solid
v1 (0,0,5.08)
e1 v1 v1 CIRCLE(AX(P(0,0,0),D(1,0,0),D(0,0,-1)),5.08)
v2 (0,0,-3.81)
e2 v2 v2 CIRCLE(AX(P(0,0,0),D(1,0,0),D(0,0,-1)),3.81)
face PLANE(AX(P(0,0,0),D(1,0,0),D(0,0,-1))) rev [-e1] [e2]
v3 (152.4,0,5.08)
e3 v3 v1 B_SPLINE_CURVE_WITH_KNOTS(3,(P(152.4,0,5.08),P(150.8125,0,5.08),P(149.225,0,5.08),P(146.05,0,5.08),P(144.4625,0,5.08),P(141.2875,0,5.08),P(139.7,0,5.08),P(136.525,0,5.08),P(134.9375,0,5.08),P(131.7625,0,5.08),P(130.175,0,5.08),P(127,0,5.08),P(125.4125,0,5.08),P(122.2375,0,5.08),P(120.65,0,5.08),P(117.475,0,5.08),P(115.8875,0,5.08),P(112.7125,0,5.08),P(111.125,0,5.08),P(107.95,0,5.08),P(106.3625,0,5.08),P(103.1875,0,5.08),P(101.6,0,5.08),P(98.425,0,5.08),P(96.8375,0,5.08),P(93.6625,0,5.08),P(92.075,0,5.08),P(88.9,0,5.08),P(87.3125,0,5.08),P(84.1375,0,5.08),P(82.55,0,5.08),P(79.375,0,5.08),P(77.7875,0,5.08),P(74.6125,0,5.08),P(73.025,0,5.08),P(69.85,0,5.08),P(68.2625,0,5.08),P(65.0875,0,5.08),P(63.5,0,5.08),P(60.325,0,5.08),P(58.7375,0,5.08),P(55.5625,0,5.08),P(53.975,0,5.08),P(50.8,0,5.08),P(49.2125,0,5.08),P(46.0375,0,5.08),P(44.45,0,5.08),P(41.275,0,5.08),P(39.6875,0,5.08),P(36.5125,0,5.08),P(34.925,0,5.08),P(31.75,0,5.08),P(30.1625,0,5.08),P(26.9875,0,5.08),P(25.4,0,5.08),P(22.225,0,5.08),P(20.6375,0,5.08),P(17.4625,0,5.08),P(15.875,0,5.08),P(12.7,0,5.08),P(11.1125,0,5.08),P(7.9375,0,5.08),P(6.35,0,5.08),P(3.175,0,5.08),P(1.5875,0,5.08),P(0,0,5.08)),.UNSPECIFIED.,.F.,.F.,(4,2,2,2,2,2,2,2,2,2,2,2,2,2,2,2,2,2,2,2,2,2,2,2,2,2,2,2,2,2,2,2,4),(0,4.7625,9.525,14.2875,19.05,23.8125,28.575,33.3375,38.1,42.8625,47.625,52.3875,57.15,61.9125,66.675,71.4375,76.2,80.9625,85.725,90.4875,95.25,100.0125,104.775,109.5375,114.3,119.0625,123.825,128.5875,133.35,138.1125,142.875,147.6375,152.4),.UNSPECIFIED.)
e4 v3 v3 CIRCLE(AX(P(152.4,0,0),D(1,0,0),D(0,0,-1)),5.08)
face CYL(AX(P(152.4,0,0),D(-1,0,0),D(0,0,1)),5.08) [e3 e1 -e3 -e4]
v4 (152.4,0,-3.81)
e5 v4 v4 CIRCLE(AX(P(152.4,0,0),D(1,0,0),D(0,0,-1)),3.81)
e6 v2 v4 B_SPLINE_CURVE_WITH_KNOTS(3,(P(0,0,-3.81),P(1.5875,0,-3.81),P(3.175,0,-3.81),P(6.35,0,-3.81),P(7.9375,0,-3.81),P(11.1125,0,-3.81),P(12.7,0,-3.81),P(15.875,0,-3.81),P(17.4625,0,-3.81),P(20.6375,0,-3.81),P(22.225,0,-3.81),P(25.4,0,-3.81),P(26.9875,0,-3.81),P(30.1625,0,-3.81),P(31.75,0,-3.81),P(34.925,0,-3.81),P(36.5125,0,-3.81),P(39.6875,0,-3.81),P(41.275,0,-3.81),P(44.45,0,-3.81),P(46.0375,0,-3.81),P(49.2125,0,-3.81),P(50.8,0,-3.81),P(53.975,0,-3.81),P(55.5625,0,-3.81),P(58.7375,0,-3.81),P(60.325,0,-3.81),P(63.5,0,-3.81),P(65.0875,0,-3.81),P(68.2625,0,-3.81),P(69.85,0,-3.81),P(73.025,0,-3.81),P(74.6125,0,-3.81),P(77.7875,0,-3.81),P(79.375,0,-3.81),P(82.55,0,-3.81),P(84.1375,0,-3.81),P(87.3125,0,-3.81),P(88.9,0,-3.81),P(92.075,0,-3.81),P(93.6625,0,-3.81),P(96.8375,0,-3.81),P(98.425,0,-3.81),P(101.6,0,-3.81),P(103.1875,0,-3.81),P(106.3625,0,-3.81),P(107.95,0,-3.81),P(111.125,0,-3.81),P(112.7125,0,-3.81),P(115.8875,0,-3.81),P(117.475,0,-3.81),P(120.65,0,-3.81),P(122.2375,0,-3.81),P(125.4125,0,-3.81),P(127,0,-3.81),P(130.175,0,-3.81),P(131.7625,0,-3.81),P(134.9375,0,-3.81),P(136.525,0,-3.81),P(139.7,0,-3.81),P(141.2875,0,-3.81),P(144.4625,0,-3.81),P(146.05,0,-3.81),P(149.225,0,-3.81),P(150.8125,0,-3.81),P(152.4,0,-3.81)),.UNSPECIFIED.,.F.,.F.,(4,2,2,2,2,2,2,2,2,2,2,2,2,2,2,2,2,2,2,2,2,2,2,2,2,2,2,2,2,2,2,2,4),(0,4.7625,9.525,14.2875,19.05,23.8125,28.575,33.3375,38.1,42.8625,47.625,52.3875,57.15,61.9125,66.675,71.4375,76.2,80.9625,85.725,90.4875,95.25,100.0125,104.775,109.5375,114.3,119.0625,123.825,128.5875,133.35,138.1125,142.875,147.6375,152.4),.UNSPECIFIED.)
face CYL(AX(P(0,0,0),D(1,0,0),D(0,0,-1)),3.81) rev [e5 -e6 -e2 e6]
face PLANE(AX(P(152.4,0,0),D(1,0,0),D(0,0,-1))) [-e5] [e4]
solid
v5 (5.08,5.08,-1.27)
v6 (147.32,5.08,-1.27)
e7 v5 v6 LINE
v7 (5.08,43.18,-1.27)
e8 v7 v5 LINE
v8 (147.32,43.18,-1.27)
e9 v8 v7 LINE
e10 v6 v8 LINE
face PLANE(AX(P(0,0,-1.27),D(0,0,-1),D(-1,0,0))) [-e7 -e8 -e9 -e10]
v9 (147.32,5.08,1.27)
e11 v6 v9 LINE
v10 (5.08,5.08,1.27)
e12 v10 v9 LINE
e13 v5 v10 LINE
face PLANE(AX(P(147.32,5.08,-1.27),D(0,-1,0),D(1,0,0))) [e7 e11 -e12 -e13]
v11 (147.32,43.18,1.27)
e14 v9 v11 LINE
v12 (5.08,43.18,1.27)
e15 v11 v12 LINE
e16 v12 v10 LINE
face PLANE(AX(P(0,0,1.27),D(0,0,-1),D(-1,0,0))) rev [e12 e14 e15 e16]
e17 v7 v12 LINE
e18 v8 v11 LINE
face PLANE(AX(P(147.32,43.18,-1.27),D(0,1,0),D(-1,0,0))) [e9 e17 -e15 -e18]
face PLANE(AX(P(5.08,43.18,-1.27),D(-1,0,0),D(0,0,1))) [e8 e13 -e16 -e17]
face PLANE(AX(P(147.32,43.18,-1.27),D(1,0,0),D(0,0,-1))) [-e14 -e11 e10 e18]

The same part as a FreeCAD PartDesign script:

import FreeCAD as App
import Part
import Sketcher

V = App.Vector
Q = App.Units.Quantity


def add_polygon(sketch, points):
    """Adds a closed chain of lines whose ends are joined by coincident constraints."""
    first, n = sketch.GeometryCount, len(points)
    for a, b in zip(points, points[1:] + points[:1]):
        sketch.addGeometry(Part.LineSegment(App.Vector(*a, 0), App.Vector(*b, 0)), False)
    for i in range(n):
        sketch.addConstraint(Sketcher.Constraint("Coincident", first + i, 2, first + (i + 1) % n, 1))

doc = App.newDocument("Part")
body = doc.addObject("PartDesign::Body", "Body")

# Sketch on YZ plane
sketch1 = body.newObject("Sketcher::SketchObject", "Sketch")
sketch1.AttachmentSupport = (doc.getObject("YZ_Plane"), [""])
sketch1.MapMode = "FlatFace"
sketch1.addGeometry(Part.Circle(V(0, 0, 0), V(0, 0, 1), 5), False)
sketch1.addConstraint([
    Sketcher.Constraint("Coincident", 0, 3, -1, 1),
    Sketcher.Constraint("Diameter", 0, Q("0.4 in")),
])
pad1 = body.newObject("PartDesign::Pad", "Pad")
pad1.Profile = sketch1
pad1.Length = Q("6 in")

# Sketch on YZ plane
sketch2 = body.newObject("Sketcher::SketchObject", "Sketch001")
sketch2.AttachmentSupport = (doc.getObject("YZ_Plane"), [""])
sketch2.MapMode = "FlatFace"
sketch2.AttachmentOffset = App.Placement(V(0, 0, 6 * 25.4), App.Rotation())
sketch2.addGeometry(Part.Circle(V(0, 0, 0), V(0, 0, 1), 3.8), False)
sketch2.addConstraint([
    Sketcher.Constraint("Coincident", 0, 3, -1, 1),
    Sketcher.Constraint("Diameter", 0, Q("0.3 in")),
])
pocket1 = body.newObject("PartDesign::Pocket", "Pocket")
pocket1.Profile = sketch2
pocket1.Length = Q("6 in")
body2 = doc.addObject("PartDesign::Body", "Body001")

# Sketch on XY plane
sketch3 = body2.newObject("Sketcher::SketchObject", "Sketch002")
sketch3.AttachmentSupport = (doc.getObject("XY_Plane001"), [""])
sketch3.MapMode = "FlatFace"
add_polygon(sketch3, [(5, 43), (5, 5), (147, 5), (147, 43)])  # lines 0-3
sketch3.addConstraint([
    Sketcher.Constraint("Vertical", 0),
    Sketcher.Constraint("Horizontal", 1),
    Sketcher.Constraint("Vertical", 2),
    Sketcher.Constraint("Horizontal", 3),
    Sketcher.Constraint("DistanceX", 1, 1, 1, 2, Q("5.6 in")),
    Sketcher.Constraint("DistanceY", 0, 2, 0, 1, Q("1.5 in")),
    Sketcher.Constraint("DistanceX", -1, 1, 0, 2, Q("0.2 in")),
    Sketcher.Constraint("DistanceY", -1, 1, 0, 2, Q("0.2 in")),
])
pad2 = body2.newObject("PartDesign::Pad", "Pad001")
pad2.Profile = sketch3
pad2.Type = "TwoLengths"
pad2.Length = Q("0.05 in")
pad2.Length2 = Q("0.05 in")

doc.recompute()
